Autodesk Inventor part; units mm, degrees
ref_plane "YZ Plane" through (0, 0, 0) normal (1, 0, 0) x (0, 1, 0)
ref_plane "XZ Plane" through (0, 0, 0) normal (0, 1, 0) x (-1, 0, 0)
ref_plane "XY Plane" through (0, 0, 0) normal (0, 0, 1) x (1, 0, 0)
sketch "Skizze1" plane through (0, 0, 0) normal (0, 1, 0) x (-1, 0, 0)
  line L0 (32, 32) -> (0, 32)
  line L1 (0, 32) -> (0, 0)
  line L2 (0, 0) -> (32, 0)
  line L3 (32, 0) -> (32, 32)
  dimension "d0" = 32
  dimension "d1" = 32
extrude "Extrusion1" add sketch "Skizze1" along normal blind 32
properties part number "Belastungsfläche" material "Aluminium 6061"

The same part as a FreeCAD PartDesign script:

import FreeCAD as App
import Part
import Sketcher
from FreeCAD import Vector

doc = App.newDocument("Part")
params = doc.addObject("Spreadsheet::Sheet", "Params")
for row, (alias, value) in enumerate([
    ("sketch1_width", "32 mm"),
    ("pad1_length", "32 mm"),
], start=1):
    params.set(f"A{row}", alias)
    params.set(f"B{row}", "=" + value)
    params.setAlias(f"B{row}", alias)

body = doc.addObject("PartDesign::Body", "Body")

sketch1 = doc.addObject("Sketcher::SketchObject", "Sketch")
body.addObject(sketch1)
sketch1.AttachmentSupport = (doc.XZ_Plane, [""])
sketch1.MapMode = "FlatFace"
sketch1.addGeometry([
    Part.LineSegment(Vector(-32, 0, 0), Vector(-32, 32, 0)),
    Part.LineSegment(Vector(-32, 32, 0), Vector(0, 32, 0)),
    Part.LineSegment(Vector(0, 32, 0), Vector(0, 0, 0)),
    Part.LineSegment(Vector(0, 0, 0), Vector(-32, 0, 0)),
], False)
sketch1.addConstraint([
    Sketcher.Constraint("Coincident", 0, 2, 1, 1),
    Sketcher.Constraint("Coincident", 1, 2, 2, 1),
    Sketcher.Constraint("Coincident", 2, 2, 3, 1),
    Sketcher.Constraint("Coincident", 3, 2, 0, 1),
    Sketcher.Constraint("Vertical", 0),
    Sketcher.Constraint("Horizontal", 1),
    Sketcher.Constraint("Vertical", 2),
    Sketcher.Constraint("Horizontal", 3),
    Sketcher.Constraint("Coincident", 2, 2, -1, 1),
    Sketcher.Constraint("Equal", 3, 0),
    Sketcher.Constraint("DistanceX", 1, 1, 1, 2, 32.0),
])
sketch1.setExpression("Constraints[10]", "Params.sketch1_width")
pad1 = doc.addObject("PartDesign::Pad", "Pad")
body.addObject(pad1)
pad1.Profile = sketch1
pad1.setExpression("Length", "Params.pad1_length")
pad1.Reversed = True

doc.recompute()
